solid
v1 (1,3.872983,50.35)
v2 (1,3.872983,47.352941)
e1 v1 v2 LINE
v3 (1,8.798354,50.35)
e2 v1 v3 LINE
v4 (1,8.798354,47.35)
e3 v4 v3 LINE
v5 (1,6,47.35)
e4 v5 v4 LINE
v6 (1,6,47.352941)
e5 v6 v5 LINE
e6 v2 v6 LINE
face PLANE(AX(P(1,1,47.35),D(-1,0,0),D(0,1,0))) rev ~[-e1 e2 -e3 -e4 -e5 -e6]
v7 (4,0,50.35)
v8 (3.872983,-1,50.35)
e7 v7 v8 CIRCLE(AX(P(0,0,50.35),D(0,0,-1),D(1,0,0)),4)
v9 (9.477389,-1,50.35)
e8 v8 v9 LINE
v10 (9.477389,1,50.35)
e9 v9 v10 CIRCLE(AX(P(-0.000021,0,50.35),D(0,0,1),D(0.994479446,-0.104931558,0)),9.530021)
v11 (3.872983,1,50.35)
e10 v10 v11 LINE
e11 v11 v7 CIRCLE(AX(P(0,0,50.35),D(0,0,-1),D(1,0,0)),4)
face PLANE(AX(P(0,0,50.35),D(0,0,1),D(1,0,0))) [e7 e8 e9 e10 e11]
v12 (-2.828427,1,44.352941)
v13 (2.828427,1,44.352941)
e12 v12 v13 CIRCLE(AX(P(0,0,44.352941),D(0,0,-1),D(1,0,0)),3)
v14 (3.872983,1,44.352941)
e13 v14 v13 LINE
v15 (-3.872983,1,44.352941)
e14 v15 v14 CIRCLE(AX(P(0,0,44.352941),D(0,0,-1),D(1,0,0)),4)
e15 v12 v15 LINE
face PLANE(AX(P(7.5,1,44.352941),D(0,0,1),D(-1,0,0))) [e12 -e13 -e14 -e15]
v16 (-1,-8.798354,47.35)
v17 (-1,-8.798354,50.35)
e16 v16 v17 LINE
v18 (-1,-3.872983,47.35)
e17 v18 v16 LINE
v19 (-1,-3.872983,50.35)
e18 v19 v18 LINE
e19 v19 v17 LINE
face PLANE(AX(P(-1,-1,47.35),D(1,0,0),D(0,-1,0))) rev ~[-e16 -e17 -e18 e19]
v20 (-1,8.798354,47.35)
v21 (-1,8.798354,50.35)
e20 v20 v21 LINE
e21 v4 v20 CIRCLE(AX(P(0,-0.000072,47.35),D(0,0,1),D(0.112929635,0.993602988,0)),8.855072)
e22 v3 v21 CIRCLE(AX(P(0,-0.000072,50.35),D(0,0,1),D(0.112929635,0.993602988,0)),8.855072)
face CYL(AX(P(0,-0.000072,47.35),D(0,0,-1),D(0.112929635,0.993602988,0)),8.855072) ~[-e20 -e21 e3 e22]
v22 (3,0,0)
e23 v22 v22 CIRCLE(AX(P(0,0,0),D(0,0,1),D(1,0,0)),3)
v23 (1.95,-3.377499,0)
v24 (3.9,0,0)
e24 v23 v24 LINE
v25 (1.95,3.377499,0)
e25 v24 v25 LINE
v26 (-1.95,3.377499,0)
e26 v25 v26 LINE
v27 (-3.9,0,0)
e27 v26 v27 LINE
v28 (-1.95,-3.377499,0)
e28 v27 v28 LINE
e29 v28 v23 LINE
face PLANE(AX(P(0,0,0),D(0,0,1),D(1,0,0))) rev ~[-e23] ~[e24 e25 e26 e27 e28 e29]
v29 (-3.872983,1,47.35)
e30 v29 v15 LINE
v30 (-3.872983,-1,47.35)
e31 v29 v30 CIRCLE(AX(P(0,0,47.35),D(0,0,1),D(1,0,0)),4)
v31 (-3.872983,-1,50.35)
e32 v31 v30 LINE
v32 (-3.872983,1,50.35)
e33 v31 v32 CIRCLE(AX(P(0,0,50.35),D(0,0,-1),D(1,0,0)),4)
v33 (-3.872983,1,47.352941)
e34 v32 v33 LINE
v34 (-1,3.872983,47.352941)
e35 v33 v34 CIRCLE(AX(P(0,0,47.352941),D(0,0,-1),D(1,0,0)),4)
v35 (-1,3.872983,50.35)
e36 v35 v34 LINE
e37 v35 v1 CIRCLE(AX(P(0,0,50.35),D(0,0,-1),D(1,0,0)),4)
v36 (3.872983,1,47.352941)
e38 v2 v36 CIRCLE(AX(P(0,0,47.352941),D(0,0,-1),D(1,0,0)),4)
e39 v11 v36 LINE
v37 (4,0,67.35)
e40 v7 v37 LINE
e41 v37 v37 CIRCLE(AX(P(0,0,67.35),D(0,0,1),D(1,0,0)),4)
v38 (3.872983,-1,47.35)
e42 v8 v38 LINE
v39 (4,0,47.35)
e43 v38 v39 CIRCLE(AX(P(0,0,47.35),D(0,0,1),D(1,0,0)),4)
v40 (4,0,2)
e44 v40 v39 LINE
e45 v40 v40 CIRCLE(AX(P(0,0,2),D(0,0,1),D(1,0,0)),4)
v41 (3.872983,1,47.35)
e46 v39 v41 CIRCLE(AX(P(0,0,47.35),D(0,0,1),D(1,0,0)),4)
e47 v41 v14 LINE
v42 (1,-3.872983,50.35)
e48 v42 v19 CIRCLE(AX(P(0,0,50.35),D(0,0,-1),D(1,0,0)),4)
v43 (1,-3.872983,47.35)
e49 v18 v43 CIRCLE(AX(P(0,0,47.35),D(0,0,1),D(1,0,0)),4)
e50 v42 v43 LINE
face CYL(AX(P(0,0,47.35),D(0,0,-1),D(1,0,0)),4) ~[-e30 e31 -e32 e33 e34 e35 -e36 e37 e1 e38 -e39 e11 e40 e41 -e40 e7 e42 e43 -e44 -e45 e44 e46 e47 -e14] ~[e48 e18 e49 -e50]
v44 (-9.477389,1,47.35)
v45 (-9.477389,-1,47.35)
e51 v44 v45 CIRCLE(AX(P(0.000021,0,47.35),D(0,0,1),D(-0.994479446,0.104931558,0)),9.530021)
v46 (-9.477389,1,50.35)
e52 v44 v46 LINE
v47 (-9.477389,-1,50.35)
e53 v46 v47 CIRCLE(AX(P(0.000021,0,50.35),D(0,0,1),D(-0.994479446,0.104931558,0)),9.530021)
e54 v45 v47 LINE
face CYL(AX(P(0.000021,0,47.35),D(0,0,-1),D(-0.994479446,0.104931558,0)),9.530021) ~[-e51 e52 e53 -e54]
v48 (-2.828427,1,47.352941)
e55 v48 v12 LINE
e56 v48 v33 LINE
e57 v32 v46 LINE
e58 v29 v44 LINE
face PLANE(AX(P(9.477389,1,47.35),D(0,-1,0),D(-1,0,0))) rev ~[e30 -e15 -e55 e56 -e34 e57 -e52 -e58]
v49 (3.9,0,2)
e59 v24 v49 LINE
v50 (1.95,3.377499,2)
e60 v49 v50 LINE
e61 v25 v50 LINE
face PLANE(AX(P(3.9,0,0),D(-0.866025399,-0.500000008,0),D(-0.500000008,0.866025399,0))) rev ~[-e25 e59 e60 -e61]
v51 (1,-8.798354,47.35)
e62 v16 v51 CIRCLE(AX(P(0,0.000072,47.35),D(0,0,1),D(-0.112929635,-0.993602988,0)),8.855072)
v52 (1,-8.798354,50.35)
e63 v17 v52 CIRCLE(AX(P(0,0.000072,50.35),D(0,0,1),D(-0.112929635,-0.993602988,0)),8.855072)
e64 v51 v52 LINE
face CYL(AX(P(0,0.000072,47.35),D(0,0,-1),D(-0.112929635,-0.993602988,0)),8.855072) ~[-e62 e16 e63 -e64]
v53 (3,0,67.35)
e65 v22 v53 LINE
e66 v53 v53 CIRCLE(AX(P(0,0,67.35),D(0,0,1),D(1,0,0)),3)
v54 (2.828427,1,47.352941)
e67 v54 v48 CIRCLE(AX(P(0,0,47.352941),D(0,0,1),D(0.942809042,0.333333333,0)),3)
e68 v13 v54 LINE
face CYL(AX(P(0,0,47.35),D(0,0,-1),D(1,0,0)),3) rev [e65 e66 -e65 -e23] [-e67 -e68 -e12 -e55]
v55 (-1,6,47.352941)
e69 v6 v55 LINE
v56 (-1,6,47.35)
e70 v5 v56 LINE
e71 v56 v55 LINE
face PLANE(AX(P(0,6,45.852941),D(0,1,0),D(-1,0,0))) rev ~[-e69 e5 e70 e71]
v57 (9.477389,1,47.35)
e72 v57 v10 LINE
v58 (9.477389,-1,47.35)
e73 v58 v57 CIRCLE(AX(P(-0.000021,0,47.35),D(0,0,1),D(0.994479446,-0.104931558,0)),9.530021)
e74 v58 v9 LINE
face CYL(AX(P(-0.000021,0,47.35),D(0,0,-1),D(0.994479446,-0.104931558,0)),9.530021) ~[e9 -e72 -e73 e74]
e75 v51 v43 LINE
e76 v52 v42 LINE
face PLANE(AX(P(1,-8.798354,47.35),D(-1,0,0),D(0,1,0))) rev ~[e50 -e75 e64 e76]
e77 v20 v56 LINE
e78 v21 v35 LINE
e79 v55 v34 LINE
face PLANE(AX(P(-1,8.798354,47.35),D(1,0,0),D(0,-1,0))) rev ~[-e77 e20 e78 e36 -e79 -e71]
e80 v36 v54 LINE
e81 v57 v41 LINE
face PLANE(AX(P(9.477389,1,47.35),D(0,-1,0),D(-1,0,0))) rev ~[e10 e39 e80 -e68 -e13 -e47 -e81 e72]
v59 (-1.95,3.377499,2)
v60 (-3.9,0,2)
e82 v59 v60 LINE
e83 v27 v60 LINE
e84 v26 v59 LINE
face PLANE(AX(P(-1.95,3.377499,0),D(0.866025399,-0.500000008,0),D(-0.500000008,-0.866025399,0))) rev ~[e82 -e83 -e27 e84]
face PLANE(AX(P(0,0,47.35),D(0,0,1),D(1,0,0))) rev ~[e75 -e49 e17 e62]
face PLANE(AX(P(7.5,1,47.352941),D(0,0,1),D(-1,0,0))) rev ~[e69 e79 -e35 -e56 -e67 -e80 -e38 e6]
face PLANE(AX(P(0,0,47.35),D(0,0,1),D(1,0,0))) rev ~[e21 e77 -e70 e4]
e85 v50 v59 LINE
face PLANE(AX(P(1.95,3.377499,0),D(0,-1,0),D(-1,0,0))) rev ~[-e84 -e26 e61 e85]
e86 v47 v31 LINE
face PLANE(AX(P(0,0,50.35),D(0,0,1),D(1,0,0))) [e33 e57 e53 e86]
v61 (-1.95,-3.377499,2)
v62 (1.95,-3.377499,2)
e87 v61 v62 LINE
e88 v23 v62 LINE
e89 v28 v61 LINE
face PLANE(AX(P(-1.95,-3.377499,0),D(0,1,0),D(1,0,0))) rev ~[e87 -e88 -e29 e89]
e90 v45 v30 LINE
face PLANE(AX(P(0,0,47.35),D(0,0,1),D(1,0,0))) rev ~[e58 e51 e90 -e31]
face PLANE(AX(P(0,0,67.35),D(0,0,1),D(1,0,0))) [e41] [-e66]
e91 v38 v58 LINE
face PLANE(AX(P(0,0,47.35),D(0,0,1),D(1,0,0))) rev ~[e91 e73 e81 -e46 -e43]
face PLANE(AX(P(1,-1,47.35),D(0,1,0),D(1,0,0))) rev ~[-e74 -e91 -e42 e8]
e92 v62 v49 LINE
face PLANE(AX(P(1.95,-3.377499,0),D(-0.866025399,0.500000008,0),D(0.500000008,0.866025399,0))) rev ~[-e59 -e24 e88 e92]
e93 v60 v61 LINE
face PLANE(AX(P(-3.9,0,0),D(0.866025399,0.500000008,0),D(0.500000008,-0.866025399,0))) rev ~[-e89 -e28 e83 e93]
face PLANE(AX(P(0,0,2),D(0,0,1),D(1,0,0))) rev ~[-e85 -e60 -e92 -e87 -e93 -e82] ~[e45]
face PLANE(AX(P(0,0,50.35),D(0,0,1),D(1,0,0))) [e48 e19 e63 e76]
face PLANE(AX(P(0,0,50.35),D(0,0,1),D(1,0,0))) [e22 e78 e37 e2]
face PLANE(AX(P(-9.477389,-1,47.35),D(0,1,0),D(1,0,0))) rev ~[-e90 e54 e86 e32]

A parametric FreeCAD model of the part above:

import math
import FreeCAD as App
import Part
import Sketcher
Q = App.Units.Quantity


def add_polygon(sketch, points):
    """Adds a closed chain of lines whose ends are joined by coincident constraints."""
    first, n = sketch.GeometryCount, len(points)
    for a, b in zip(points, points[1:] + points[:1]):
        sketch.addGeometry(Part.LineSegment(App.Vector(*a, 0), App.Vector(*b, 0)), False)
    for i in range(n):
        sketch.addConstraint(Sketcher.Constraint("Coincident", first + i, 2, first + (i + 1) % n, 1))

doc = App.newDocument("Part")
body = doc.addObject("PartDesign::Body", "Body")

sketch1 = body.newObject("Sketcher::SketchObject", "Sketch")
sketch1.AttachmentSupport = (doc.getObject("XY_Plane"), [""])
sketch1.MapMode = "FlatFace"
add_polygon(sketch1, [(1.9, 3.4), (-1.9, 3.4), (-3.9, 0), (-1.9, -3.4), (1.9, -3.4), (3.9, 0)])
sketch1.addGeometry(Part.Circle(App.Vector(0, 0, 0), App.Vector(0, 0, 1), 3), False)
sketch1.addConstraint(Sketcher.Constraint("Horizontal", 0))
sketch1.addConstraint(Sketcher.Constraint("Horizontal", 3))
sketch1.addConstraint(Sketcher.Constraint("Coincident", 6, 3, -1, 1))
sketch1.addConstraint(Sketcher.Constraint("Symmetric", 0, 2, 3, 2, -1, 1))
sketch1.addConstraint(Sketcher.Constraint("Symmetric", 1, 2, 4, 2, -1, 1))
sketch1.addConstraint(Sketcher.Constraint("PointOnObject", 1, 2, -1))
sketch1.addConstraint(Sketcher.Constraint("Parallel", 2, 5))
sketch1.addConstraint(Sketcher.Constraint("Vertical", 0, 2, 2, 2))
sketch1.addConstraint(Sketcher.Constraint("Diameter", 6, 6.0))
sketch1.addConstraint(Sketcher.Constraint("Angle", 1, Q("-120.000001 deg")))
sketch1.addConstraint(Sketcher.Constraint("DistanceX", 0, 2, 0, 1, 3.9))
sketch1.addConstraint(Sketcher.Constraint("Distance", 1, 3.9))
pad1 = body.newObject("PartDesign::Pad", "Pad")
pad1.Profile = sketch1
pad1.Length = 2

sketch2 = body.newObject("Sketcher::SketchObject", "Sketch001")
sketch2.AttachmentSupport = (doc.getObject("XY_Plane"), [""])
sketch2.MapMode = "FlatFace"
sketch2.AttachmentOffset = App.Placement(App.Vector(0, 0, 2), App.Rotation())
sketch2.addGeometry(Part.Circle(App.Vector(0, 0, 0), App.Vector(0, 0, 1), 4), False)
sketch2.addGeometry(Part.Circle(App.Vector(0, 0, 0), App.Vector(0, 0, 1), 3), False)
sketch2.addConstraint(Sketcher.Constraint("Coincident", 0, 3, -1, 1))
sketch2.addConstraint(Sketcher.Constraint("Coincident", 1, 3, -1, 1))
sketch2.addConstraint(Sketcher.Constraint("Diameter", 0, 8.0))
sketch2.addConstraint(Sketcher.Constraint("Diameter", 1, 6.0))
pad2 = body.newObject("PartDesign::Pad", "Pad001")
pad2.Profile = sketch2
pad2.Length = 45.35

sketch3 = body.newObject("Sketcher::SketchObject", "Sketch002")
sketch3.AttachmentSupport = (doc.getObject("XY_Plane"), [""])
sketch3.MapMode = "FlatFace"
sketch3.AttachmentOffset = App.Placement(App.Vector(0, 0, 47.35), App.Rotation())
sketch3.addGeometry(Part.LineSegment(App.Vector(1, -8.798354, 0), App.Vector(1, -1, 0)), False)
sketch3.addGeometry(Part.LineSegment(App.Vector(1, -1, 0), App.Vector(9.477389, -1, 0)), False)
sketch3.addGeometry(Part.ArcOfCircle(Part.Circle(App.Vector(-0.000021, 0, 0), App.Vector(0, 0, 1), 9.530021), math.radians(-6.023223), math.radians(6.023223)), False)
sketch3.addGeometry(Part.LineSegment(App.Vector(9.477389, 1, 0), App.Vector(1, 1, 0)), False)
sketch3.addGeometry(Part.LineSegment(App.Vector(1, 1, 0), App.Vector(1, 8.798354, 0)), False)
sketch3.addGeometry(Part.ArcOfCircle(Part.Circle(App.Vector(0, -0.000072, 0), App.Vector(0, 0, 1), 8.855072), math.radians(83.515776), math.radians(96.484224)), False)
sketch3.addGeometry(Part.LineSegment(App.Vector(-1, 8.798354, 0), App.Vector(-1, 1, 0)), False)
sketch3.addGeometry(Part.LineSegment(App.Vector(-1, 1, 0), App.Vector(-9.477389, 1, 0)), False)
sketch3.addGeometry(Part.ArcOfCircle(Part.Circle(App.Vector(0.000021, 0, 0), App.Vector(0, 0, 1), 9.530021), math.radians(173.976777), math.radians(186.023223)), False)
sketch3.addGeometry(Part.LineSegment(App.Vector(-9.477389, -1, 0), App.Vector(-1, -1, 0)), False)
sketch3.addGeometry(Part.LineSegment(App.Vector(-1, -1, 0), App.Vector(-1, -8.798354, 0)), False)
sketch3.addGeometry(Part.ArcOfCircle(Part.Circle(App.Vector(0, 0.000072, 0), App.Vector(0, 0, 1), 8.855072), math.radians(-96.484224), math.radians(-83.515776)), False)
sketch3.addConstraint(Sketcher.Constraint("Coincident", 0, 2, 1, 1))
sketch3.addConstraint(Sketcher.Constraint("Coincident", 1, 2, 2, 1))
sketch3.addConstraint(Sketcher.Constraint("Coincident", 2, 2, 3, 1))
sketch3.addConstraint(Sketcher.Constraint("Coincident", 3, 2, 4, 1))
sketch3.addConstraint(Sketcher.Constraint("Coincident", 4, 2, 5, 1))
sketch3.addConstraint(Sketcher.Constraint("Coincident", 5, 2, 6, 1))
sketch3.addConstraint(Sketcher.Constraint("Coincident", 6, 2, 7, 1))
sketch3.addConstraint(Sketcher.Constraint("Coincident", 7, 2, 8, 1))
sketch3.addConstraint(Sketcher.Constraint("Coincident", 8, 2, 9, 1))
sketch3.addConstraint(Sketcher.Constraint("Coincident", 9, 2, 10, 1))
sketch3.addConstraint(Sketcher.Constraint("Coincident", 10, 2, 11, 1))
sketch3.addConstraint(Sketcher.Constraint("Coincident", 11, 2, 0, 1))
sketch3.addConstraint(Sketcher.Constraint("Vertical", 0))
sketch3.addConstraint(Sketcher.Constraint("Horizontal", 1))
sketch3.addConstraint(Sketcher.Constraint("Horizontal", 3))
sketch3.addConstraint(Sketcher.Constraint("Vertical", 4))
sketch3.addConstraint(Sketcher.Constraint("Vertical", 6))
sketch3.addConstraint(Sketcher.Constraint("Horizontal", 7))
sketch3.addConstraint(Sketcher.Constraint("Horizontal", 9))
sketch3.addConstraint(Sketcher.Constraint("Vertical", 10))
sketch3.addConstraint(Sketcher.Constraint("Equal", 2, 8))
sketch3.addConstraint(Sketcher.Constraint("Equal", 5, 11))
sketch3.addConstraint(Sketcher.Constraint("Symmetric", 2, 3, 8, 3, -1, 1))
sketch3.addConstraint(Sketcher.Constraint("Symmetric", 5, 3, 11, 3, -1, 1))
sketch3.addConstraint(Sketcher.Constraint("Symmetric", 0, 2, 6, 2, -1, 1))
sketch3.addConstraint(Sketcher.Constraint("Symmetric", 3, 2, 9, 2, -1, 1))
sketch3.addConstraint(Sketcher.Constraint("Symmetric", 4, 2, 5, 2, -2))
sketch3.addConstraint(Sketcher.Constraint("Symmetric", 2, 2, 7, 2, -2))
sketch3.addConstraint(Sketcher.Constraint("DistanceX", -1, 1, 0, 2, 1.0))
sketch3.addConstraint(Sketcher.Constraint("DistanceY", 0, 2, -1, 1, 1.0))
sketch3.addConstraint(Sketcher.Constraint("Radius", 2, 9.530021))
sketch3.addConstraint(Sketcher.Constraint("Radius", 5, 8.855072))
sketch3.addConstraint(Sketcher.Constraint("DistanceX", 1, 1, 1, 2, 8.477389))
sketch3.addConstraint(Sketcher.Constraint("DistanceY", 0, 1, 0, 2, 7.798354))
pad3 = body.newObject("PartDesign::Pad", "Pad002")
pad3.Profile = sketch3
pad3.Length = 3

sketch4 = body.newObject("Sketcher::SketchObject", "Sketch003")
sketch4.AttachmentSupport = (doc.getObject("XY_Plane"), [""])
sketch4.MapMode = "FlatFace"
sketch4.AttachmentOffset = App.Placement(App.Vector(0, 0, 47.35), App.Rotation())
sketch4.addGeometry(Part.Circle(App.Vector(0, 0, 0), App.Vector(0, 0, 1), 4), False)
sketch4.addGeometry(Part.Circle(App.Vector(0, 0, 0), App.Vector(0, 0, 1), 3), False)
sketch4.addConstraint(Sketcher.Constraint("Coincident", 0, 3, -1, 1))
sketch4.addConstraint(Sketcher.Constraint("Coincident", 1, 3, -1, 1))
sketch4.addConstraint(Sketcher.Constraint("Diameter", 0, 8.0))
sketch4.addConstraint(Sketcher.Constraint("Diameter", 1, 6.0))
pad4 = body.newObject("PartDesign::Pad", "Pad003")
pad4.Profile = sketch4
pad4.Length = 20

sketch5 = body.newObject("Sketcher::SketchObject", "Sketch004")
sketch5.AttachmentSupport = (doc.getObject("XZ_Plane"), [""])
sketch5.MapMode = "FlatFace"
sketch5.AttachmentOffset = App.Placement(App.Vector(0, 0, -1), App.Rotation())
add_polygon(sketch5, [(7.5, 47.4), (7.5, 44.4), (-7.5, 44.4), (-7.5, 47.4)])
sketch5.addConstraint(Sketcher.Constraint("Vertical", 0))
sketch5.addConstraint(Sketcher.Constraint("Horizontal", 1))
sketch5.addConstraint(Sketcher.Constraint("Vertical", 2))
sketch5.addConstraint(Sketcher.Constraint("Horizontal", 3))
sketch5.addConstraint(Sketcher.Constraint("DistanceX", 1, 2, 1, 1, 15.0))
sketch5.addConstraint(Sketcher.Constraint("DistanceY", 0, 2, 0, 1, 3.0))
sketch5.addConstraint(Sketcher.Constraint("DistanceX", -1, 1, 0, 2, 7.5))
sketch5.addConstraint(Sketcher.Constraint("DistanceY", -1, 1, 0, 2, 44.352941))
pocket1 = body.newObject("PartDesign::Pocket", "Pocket")
pocket1.Profile = sketch5
pocket1.Length = 5

sketch6 = body.newObject("Sketcher::SketchObject", "Sketch005")
sketch6.AttachmentSupport = (doc.getObject("XY_Plane"), [""])
sketch6.MapMode = "FlatFace"
sketch6.AttachmentOffset = App.Placement(App.Vector(0, 0, 67.35), App.Rotation())
sketch6.addGeometry(Part.Circle(App.Vector(0, 0, 0), App.Vector(0, 0, 1), 3), False)
sketch6.addConstraint(Sketcher.Constraint("Coincident", 0, 3, -1, 1))
sketch6.addConstraint(Sketcher.Constraint("Diameter", 0, 6.0))
pocket2 = body.newObject("PartDesign::Pocket", "Pocket001")
pocket2.Profile = sketch6
pocket2.Type = "ThroughAll"

doc.recompute()
